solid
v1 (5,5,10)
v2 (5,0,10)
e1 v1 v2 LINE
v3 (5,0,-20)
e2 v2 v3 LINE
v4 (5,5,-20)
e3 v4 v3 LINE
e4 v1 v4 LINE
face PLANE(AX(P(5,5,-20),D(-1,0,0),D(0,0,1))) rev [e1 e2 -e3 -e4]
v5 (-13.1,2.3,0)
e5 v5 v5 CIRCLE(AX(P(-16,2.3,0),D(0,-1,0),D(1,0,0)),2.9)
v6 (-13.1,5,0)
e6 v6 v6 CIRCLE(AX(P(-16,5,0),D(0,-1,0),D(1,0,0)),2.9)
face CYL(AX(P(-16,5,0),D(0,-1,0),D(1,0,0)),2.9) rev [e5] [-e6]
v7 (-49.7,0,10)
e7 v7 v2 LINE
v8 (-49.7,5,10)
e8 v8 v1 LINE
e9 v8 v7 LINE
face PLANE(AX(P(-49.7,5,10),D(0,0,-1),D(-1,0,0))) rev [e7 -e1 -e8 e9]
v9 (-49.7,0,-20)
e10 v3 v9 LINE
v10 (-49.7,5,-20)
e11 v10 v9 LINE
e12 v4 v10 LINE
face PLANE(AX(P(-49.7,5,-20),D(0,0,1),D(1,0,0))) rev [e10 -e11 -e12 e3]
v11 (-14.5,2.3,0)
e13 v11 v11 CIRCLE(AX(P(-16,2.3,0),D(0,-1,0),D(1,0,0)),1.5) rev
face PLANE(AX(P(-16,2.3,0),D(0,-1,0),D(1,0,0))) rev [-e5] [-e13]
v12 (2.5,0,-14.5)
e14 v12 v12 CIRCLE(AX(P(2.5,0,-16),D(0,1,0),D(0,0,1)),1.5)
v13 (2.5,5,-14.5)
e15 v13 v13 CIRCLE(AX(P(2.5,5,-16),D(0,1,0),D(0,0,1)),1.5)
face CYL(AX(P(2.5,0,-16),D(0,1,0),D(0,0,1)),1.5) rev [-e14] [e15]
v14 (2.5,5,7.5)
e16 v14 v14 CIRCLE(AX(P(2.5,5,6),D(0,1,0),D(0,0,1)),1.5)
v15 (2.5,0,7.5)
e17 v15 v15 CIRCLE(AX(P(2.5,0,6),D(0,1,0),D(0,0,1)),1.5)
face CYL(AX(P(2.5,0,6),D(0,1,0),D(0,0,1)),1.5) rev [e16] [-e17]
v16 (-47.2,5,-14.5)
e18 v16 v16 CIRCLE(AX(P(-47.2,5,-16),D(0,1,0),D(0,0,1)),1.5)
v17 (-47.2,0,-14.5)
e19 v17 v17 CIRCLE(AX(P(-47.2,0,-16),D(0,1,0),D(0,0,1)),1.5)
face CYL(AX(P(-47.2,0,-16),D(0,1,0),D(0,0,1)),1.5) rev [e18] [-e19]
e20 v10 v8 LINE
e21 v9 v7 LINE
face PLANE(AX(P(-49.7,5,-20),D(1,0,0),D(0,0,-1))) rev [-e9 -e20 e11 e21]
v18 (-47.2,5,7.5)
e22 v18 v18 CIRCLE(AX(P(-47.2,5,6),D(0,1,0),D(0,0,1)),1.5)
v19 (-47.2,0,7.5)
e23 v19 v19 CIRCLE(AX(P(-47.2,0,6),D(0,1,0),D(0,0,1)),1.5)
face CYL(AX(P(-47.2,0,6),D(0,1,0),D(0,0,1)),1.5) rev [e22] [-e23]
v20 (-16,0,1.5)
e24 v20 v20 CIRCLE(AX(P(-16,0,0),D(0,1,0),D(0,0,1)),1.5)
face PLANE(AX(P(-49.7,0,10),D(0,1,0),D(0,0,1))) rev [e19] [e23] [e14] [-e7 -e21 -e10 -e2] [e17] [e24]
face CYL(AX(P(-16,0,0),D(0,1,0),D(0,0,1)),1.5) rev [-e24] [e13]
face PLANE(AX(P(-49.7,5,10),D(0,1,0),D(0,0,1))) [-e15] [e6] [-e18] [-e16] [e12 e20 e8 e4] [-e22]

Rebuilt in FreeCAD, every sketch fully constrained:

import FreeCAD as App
import Part
import Sketcher
from FreeCAD import Vector
Q = App.Units.Quantity

doc = App.newDocument("Part")
body = doc.addObject("PartDesign::Body", "Body")

sketch1 = body.newObject("Sketcher::SketchObject", "Sketch")
sketch1.AttachmentSupport = (doc.getObject("XZ_Plane"), [""])
sketch1.MapMode = "FlatFace"
sketch1.addGeometry([
    Part.LineSegment(Vector(-49.7, -20, 0), Vector(-49.7, 10, 0)),
    Part.LineSegment(Vector(-49.7, 10, 0), Vector(5, 10, 0)),
    Part.LineSegment(Vector(5, 10, 0), Vector(5, -20, 0)),
    Part.LineSegment(Vector(5, -20, 0), Vector(-49.7, -20, 0)),
], False)
sketch1.addConstraint([
    Sketcher.Constraint("Coincident", 0, 2, 1, 1),
    Sketcher.Constraint("Coincident", 1, 2, 2, 1),
    Sketcher.Constraint("Coincident", 2, 2, 3, 1),
    Sketcher.Constraint("Coincident", 3, 2, 0, 1),
    Sketcher.Constraint("Vertical", 0),
    Sketcher.Constraint("Horizontal", 1),
    Sketcher.Constraint("Vertical", 2),
    Sketcher.Constraint("Horizontal", 3),
    Sketcher.Constraint("DistanceY", 0, 1, 0, 2, Q("30 mm")),
    Sketcher.Constraint("DistanceX", 1, 1, 1, 2, Q("54.7 mm")),
    Sketcher.Constraint("DistanceY", -1, 1, 0, 2, Q("10 mm")),
    Sketcher.Constraint("DistanceX", -1, 1, 1, 2, Q("5 mm")),
])
pad1 = body.newObject("PartDesign::Pad", "Pad")
pad1.Profile = sketch1
pad1.Length = 5
pad1.Reversed = True

sketch2 = body.newObject("Sketcher::SketchObject", "Sketch001")
sketch2.AttachmentSupport = (doc.getObject("XZ_Plane"), [""])
sketch2.MapMode = "FlatFace"
sketch2.AttachmentOffset = App.Placement(Vector(0, 0, -5), App.Rotation())
sketch2.addGeometry(Part.Circle(Vector(-16, 0, 0), Vector(0, 0, 1), 1.5), False)
sketch2.addConstraint([
    Sketcher.Constraint("PointOnObject", 0, 3, -1),
    Sketcher.Constraint("Diameter", 0, Q("3 mm")),
    Sketcher.Constraint("DistanceX", 0, 3, -1, 1, Q("16 mm")),
])
pocket1 = body.newObject("PartDesign::Pocket", "Pocket")
pocket1.Profile = sketch2
pocket1.Type = "ThroughAll"
pocket1.Reversed = True

sketch3 = body.newObject("Sketcher::SketchObject", "Sketch002")
sketch3.AttachmentSupport = (doc.getObject("XZ_Plane"), [""])
sketch3.MapMode = "FlatFace"
sketch3.AttachmentOffset = App.Placement(Vector(0, 0, -2.3), App.Rotation())
sketch3.addGeometry(Part.Circle(Vector(-16, 0, 0), Vector(0, 0, 1), 2.9), False)
sketch3.addConstraint([
    Sketcher.Constraint("PointOnObject", 0, 3, -1),
    Sketcher.Constraint("Diameter", 0, Q("5.8 mm")),
    Sketcher.Constraint("DistanceX", 0, 3, -1, 1, Q("16 mm")),
])
pocket2 = body.newObject("PartDesign::Pocket", "Pocket001")
pocket2.Profile = sketch3
pocket2.Type = "ThroughAll"

sketch4 = body.newObject("Sketcher::SketchObject", "Sketch003")
sketch4.AttachmentSupport = (doc.getObject("XZ_Plane"), [""])
sketch4.MapMode = "FlatFace"
sketch4.AttachmentOffset = App.Placement(Vector(0, 0, -5), App.Rotation())
sketch4.addGeometry([
    Part.Circle(Vector(2.5, 6, 0), Vector(0, 0, 1), 1.5),
    Part.Circle(Vector(2.5, -16, 0), Vector(0, 0, 1), 1.5),
    Part.Circle(Vector(-47.2, -16, 0), Vector(0, 0, 1), 1.5),
    Part.Circle(Vector(-47.2, 6, 0), Vector(0, 0, 1), 1.5),
], False)
sketch4.addConstraint([
    Sketcher.Constraint("Equal", 0, 1),
    Sketcher.Constraint("Equal", 1, 2),
    Sketcher.Constraint("Equal", 2, 3),
    Sketcher.Constraint("Horizontal", 1, 3, 2, 3),
    Sketcher.Constraint("Horizontal", 0, 3, 3, 3),
    Sketcher.Constraint("Vertical", 0, 3, 1, 3),
    Sketcher.Constraint("Vertical", 2, 3, 3, 3),
    Sketcher.Constraint("Diameter", 0, Q("3 mm")),
    Sketcher.Constraint("DistanceY", -1, 1, 0, 3, Q("6 mm")),
    Sketcher.Constraint("DistanceY", 1, 3, -1, 1, Q("16 mm")),
    Sketcher.Constraint("DistanceX", -1, 1, 0, 3, Q("2.5 mm")),
    Sketcher.Constraint("DistanceX", 2, 3, -1, 1, Q("47.2 mm")),
])
pocket3 = body.newObject("PartDesign::Pocket", "Pocket002")
pocket3.Profile = sketch4
pocket3.Type = "ThroughAll"
pocket3.Reversed = True

doc.recompute()
